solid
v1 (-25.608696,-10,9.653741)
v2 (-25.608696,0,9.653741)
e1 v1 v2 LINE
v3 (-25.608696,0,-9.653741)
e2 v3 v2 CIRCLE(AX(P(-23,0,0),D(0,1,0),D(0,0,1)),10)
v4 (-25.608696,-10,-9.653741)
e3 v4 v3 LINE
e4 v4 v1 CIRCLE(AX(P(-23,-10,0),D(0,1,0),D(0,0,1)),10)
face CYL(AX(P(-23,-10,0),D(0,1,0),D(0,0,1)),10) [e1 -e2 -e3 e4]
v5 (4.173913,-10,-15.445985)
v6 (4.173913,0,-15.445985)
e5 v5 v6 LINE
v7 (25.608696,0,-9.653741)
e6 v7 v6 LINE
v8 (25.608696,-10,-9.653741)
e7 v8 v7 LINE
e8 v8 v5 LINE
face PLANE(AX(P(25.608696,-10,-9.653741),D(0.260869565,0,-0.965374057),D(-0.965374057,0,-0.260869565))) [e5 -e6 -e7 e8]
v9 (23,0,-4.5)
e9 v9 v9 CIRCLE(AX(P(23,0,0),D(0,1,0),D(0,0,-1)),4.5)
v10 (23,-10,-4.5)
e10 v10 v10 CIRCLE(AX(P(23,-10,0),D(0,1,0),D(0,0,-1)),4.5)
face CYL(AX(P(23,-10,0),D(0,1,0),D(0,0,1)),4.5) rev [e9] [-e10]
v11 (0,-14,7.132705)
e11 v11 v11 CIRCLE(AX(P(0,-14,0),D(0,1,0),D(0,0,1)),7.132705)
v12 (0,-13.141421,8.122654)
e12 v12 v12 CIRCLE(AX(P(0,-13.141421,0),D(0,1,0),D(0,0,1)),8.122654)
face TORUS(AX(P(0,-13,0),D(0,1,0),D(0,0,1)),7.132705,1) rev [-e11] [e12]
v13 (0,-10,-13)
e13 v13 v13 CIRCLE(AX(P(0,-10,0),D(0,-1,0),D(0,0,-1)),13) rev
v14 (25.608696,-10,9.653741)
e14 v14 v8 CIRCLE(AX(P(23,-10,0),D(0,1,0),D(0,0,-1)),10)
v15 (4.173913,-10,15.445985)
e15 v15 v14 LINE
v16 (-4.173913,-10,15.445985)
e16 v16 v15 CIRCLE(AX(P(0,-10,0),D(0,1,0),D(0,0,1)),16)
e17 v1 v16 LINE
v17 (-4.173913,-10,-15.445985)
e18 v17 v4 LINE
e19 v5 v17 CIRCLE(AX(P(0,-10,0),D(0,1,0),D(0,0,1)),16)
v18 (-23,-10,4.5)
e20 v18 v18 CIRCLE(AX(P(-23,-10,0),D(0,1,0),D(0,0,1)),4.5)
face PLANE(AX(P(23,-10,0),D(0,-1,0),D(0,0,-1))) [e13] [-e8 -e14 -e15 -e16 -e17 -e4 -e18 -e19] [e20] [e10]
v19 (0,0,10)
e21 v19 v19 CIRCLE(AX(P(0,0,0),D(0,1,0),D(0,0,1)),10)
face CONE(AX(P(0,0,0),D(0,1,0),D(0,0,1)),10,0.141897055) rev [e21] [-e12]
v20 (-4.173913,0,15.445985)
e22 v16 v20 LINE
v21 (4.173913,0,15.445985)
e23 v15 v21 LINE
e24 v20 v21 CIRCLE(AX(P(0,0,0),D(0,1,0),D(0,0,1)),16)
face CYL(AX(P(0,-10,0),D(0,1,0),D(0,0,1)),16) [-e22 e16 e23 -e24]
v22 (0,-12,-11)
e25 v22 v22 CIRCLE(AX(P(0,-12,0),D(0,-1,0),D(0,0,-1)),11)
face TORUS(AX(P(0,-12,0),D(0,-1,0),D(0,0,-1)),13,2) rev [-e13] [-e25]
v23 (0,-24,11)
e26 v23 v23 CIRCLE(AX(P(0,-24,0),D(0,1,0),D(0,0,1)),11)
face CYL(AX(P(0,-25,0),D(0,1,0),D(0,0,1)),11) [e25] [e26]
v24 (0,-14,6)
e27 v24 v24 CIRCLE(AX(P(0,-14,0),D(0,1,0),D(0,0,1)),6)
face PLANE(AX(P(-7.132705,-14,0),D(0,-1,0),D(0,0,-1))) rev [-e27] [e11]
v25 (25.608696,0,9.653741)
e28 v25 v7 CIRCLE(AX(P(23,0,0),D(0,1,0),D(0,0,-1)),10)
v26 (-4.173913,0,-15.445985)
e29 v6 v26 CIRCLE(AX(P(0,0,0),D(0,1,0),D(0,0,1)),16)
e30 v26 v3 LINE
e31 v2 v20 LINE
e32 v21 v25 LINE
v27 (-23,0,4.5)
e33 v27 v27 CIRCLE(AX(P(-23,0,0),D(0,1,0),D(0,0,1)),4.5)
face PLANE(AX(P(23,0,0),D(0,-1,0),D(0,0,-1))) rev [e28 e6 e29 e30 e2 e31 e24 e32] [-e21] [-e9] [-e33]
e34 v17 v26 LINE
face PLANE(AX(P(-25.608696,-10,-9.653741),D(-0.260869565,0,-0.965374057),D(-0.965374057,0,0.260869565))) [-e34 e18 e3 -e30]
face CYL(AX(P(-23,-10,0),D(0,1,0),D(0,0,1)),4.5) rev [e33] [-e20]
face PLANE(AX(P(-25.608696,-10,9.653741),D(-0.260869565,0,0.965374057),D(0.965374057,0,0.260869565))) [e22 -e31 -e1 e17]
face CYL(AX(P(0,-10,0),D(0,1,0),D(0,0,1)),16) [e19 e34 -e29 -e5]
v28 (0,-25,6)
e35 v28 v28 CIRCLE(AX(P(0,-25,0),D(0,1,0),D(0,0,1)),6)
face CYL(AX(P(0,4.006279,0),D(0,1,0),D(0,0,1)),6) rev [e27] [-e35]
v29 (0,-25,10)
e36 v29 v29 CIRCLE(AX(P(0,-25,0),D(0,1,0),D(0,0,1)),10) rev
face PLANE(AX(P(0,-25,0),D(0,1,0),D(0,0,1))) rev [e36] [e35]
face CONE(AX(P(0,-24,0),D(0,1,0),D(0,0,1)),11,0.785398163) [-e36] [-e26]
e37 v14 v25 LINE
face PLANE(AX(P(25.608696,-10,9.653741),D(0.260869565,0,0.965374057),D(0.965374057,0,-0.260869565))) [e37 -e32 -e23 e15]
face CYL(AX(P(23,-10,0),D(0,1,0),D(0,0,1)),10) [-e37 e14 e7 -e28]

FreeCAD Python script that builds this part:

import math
import FreeCAD as App
import Part
import Sketcher
from FreeCAD import Vector
Q = App.Units.Quantity


def edges_at(feature, points):
    """Names of the edges that pass closest to the given points."""
    edges = feature.Shape.Edges
    near = lambda p: min(range(len(edges)), key=lambda i: edges[i].distToShape(Part.Vertex(*p))[0])
    return sorted({f"Edge{near(p) + 1}" for p in points})

doc = App.newDocument("Part")
params = doc.addObject("Spreadsheet::Sheet", "Params")
for row, (alias, value) in enumerate([
    ("sketch1_diameter", "9 mm"),
    ("sketch1_radius", "10 mm"),
    ("sketch1_radius2", "16 mm"),
    ("pad1_length", "10 mm"),
    ("sketch2_diameter", "22 mm"),
    ("pad2_length", "25 mm"),
    ("sketch3_radius", "1 mm"),
    ("sketch3_width", "10 mm"),
    ("sketch3_width2", "6 mm"),
    ("sketch3_height", "11 mm"),
    ("sketch3_height2", "25 mm"),
    ("groove_angle", "360 deg"),
    ("fillet_radius", "2 mm"),
    ("chamfer_size", "1 mm"),
], start=1):
    params.set(f"A{row}", alias)
    params.set(f"B{row}", "=" + value)
    params.setAlias(f"B{row}", alias)

body = doc.addObject("PartDesign::Body", "Body")

# Sketch on XZ plane
sketch1 = doc.addObject("Sketcher::SketchObject", "Sketch")
body.addObject(sketch1)
sketch1.AttachmentSupport = (doc.XZ_Plane, [""])
sketch1.MapMode = "FlatFace"
sketch1.addGeometry([
    Part.LineSegment(Vector(-4.173913, -15.445985, 0), Vector(-25.608696, -9.653741, 0)),  # 0
    Part.ArcOfCircle(Part.Circle(Vector(-23, 0, 0), Vector(0, 0, 1), 10), math.radians(105.121665), math.radians(254.878335)),  # 1
    Part.LineSegment(Vector(-25.608696, 9.653741, 0), Vector(-4.173913, 15.445985, 0)),  # 2
    Part.ArcOfCircle(Part.Circle(Vector(0, 0, 0), Vector(0, 0, 1), 16), math.radians(74.878335), math.radians(105.121665)),  # 3
    Part.LineSegment(Vector(4.173913, 15.445985, 0), Vector(25.608696, 9.653741, 0)),  # 4
    Part.ArcOfCircle(Part.Circle(Vector(23, 0, 0), Vector(0, 0, 1), 10), math.radians(-74.878335), math.radians(74.878335)),  # 5
    Part.LineSegment(Vector(25.608696, -9.653741, 0), Vector(4.173913, -15.445985, 0)),  # 6
    Part.ArcOfCircle(Part.Circle(Vector(0, 0, 0), Vector(0, 0, 1), 16), math.radians(-105.121665), math.radians(-74.878335)),  # 7
    Part.Circle(Vector(23, 0, 0), Vector(0, 0, 1), 4.5),  # 8
    Part.Circle(Vector(-23, 0, 0), Vector(0, 0, 1), 4.5),  # 9
], False)
sketch1.addConstraint([
    Sketcher.Constraint("Tangent", 0, 2, 1, 2),
    Sketcher.Constraint("Tangent", 1, 1, 2, 1),
    Sketcher.Constraint("Tangent", 2, 2, 3, 2),
    Sketcher.Constraint("Tangent", 3, 1, 4, 1),
    Sketcher.Constraint("Tangent", 4, 2, 5, 2),
    Sketcher.Constraint("Tangent", 5, 1, 6, 1),
    Sketcher.Constraint("Tangent", 6, 2, 7, 2),
    Sketcher.Constraint("Tangent", 7, 1, 0, 1),
    Sketcher.Constraint("Coincident", 3, 3, -1, 1),
    Sketcher.Constraint("Coincident", 7, 3, -1, 1),
    Sketcher.Constraint("Coincident", 8, 3, 5, 3),
    Sketcher.Constraint("Coincident", 9, 3, 1, 3),
    Sketcher.Constraint("Equal", 1, 5),
    Sketcher.Constraint("Equal", 3, 7),
    Sketcher.Constraint("Equal", 8, 9),
    Sketcher.Constraint("Symmetric", 1, 3, 5, 3, -1, 1),
    Sketcher.Constraint("PointOnObject", 1, 3, -1),
    Sketcher.Constraint("Diameter", 8, Q("9 mm")),
    Sketcher.Constraint("Radius", 1, Q("10 mm")),
    Sketcher.Constraint("Radius", 3, Q("16 mm")),
    Sketcher.Constraint("DistanceX", 1, 3, -1, 1, Q("23 mm")),
])
sketch1.setExpression("Constraints[17]", "Params.sketch1_diameter")
sketch1.setExpression("Constraints[18]", "Params.sketch1_radius")
sketch1.setExpression("Constraints[19]", "Params.sketch1_radius2")
pad1 = doc.addObject("PartDesign::Pad", "Pad")
body.addObject(pad1)
pad1.Profile = sketch1
pad1.setExpression("Length", "Params.pad1_length")

# Sketch on XZ plane
sketch2 = doc.addObject("Sketcher::SketchObject", "Sketch001")
body.addObject(sketch2)
sketch2.AttachmentSupport = (doc.XZ_Plane, [""])
sketch2.MapMode = "FlatFace"
sketch2.addGeometry(Part.Circle(Vector(0, 0, 0), Vector(0, 0, 1), 11), False)
sketch2.addConstraint([
    Sketcher.Constraint("Coincident", 0, 3, -1, 1),
    Sketcher.Constraint("Diameter", 0, Q("22 mm")),
])
sketch2.setExpression("Constraints[1]", "Params.sketch2_diameter")
pad2 = doc.addObject("PartDesign::Pad", "Pad001")
body.addObject(pad2)
pad2.Profile = sketch2
pad2.setExpression("Length", "Params.pad2_length")

# Sketch on XY plane
sketch3 = doc.addObject("Sketcher::SketchObject", "Sketch002")
body.addObject(sketch3)
sketch3.AttachmentSupport = (doc.XY_Plane, [""])
sketch3.MapMode = "FlatFace"
sketch3.addGeometry([
    Part.LineSegment(Vector(0, 0, 0), Vector(-10, 0, 0)),  # 0
    Part.LineSegment(Vector(-10, 0, 0), Vector(-8.122654, -13.141421, 0)),  # 1
    Part.ArcOfCircle(Part.Circle(Vector(-7.132705, -13, 0), Vector(0, 0, 1), 1), math.radians(-171.869898), math.radians(-90)),  # 2
    Part.LineSegment(Vector(-7.132705, -14, 0), Vector(-6, -14, 0)),  # 3
    Part.LineSegment(Vector(-6, -14, 0), Vector(-6, -25, 0)),  # 4
    Part.LineSegment(Vector(-6, -25, 0), Vector(0, -25, 0)),  # 5
    Part.LineSegment(Vector(0, -25, 0), Vector(0, 0, 0)),  # 6
], False)
sketch3.addConstraint([
    Sketcher.Constraint("Coincident", 0, 2, 1, 1),
    Sketcher.Constraint("Tangent", 1, 2, 2, 1),
    Sketcher.Constraint("Tangent", 2, 2, 3, 1),
    Sketcher.Constraint("Coincident", 3, 2, 4, 1),
    Sketcher.Constraint("Coincident", 4, 2, 5, 1),
    Sketcher.Constraint("Coincident", 5, 2, 6, 1),
    Sketcher.Constraint("Coincident", 6, 2, 0, 1),
    Sketcher.Constraint("Horizontal", 0),
    Sketcher.Constraint("Horizontal", 3),
    Sketcher.Constraint("Vertical", 4),
    Sketcher.Constraint("Horizontal", 5),
    Sketcher.Constraint("Vertical", 6),
    Sketcher.Constraint("Coincident", 6, 2, -1, 1),
    Sketcher.Constraint("Radius", 2, Q("1 mm")),
    Sketcher.Constraint("DistanceX", 0, 2, 0, 1, Q("10 mm")),
    Sketcher.Constraint("DistanceX", 5, 1, 5, 2, Q("6 mm")),
    Sketcher.Constraint("DistanceY", 4, 2, 4, 1, Q("11 mm")),
    Sketcher.Constraint("DistanceY", 6, 1, 6, 2, Q("25 mm")),
    Sketcher.Constraint("Distance", 1, Q("13.27484 mm")),
])
sketch3.setExpression("Constraints[13]", "Params.sketch3_radius")
sketch3.setExpression("Constraints[14]", "Params.sketch3_width")
sketch3.setExpression("Constraints[15]", "Params.sketch3_width2")
sketch3.setExpression("Constraints[16]", "Params.sketch3_height")
sketch3.setExpression("Constraints[17]", "Params.sketch3_height2")
groove = doc.addObject("PartDesign::Groove", "Groove")
body.addObject(groove)
groove.Profile = sketch3
groove.ReferenceAxis = (sketch3, ["V_Axis"])
groove.setExpression("Angle", "Params.groove_angle")
doc.recompute()

fillet = doc.addObject("PartDesign::Fillet", "Fillet")
body.addObject(fillet)
fillet.Base = (groove, edges_at(groove, [(0, -10, -11)]))
fillet.setExpression("Radius", "Params.fillet_radius")
doc.recompute()

chamfer = doc.addObject("PartDesign::Chamfer", "Chamfer")
body.addObject(chamfer)
chamfer.Base = (fillet, edges_at(fillet, [(0, -25, -11)]))
chamfer.setExpression("Size", "Params.chamfer_size")

doc.recompute()
